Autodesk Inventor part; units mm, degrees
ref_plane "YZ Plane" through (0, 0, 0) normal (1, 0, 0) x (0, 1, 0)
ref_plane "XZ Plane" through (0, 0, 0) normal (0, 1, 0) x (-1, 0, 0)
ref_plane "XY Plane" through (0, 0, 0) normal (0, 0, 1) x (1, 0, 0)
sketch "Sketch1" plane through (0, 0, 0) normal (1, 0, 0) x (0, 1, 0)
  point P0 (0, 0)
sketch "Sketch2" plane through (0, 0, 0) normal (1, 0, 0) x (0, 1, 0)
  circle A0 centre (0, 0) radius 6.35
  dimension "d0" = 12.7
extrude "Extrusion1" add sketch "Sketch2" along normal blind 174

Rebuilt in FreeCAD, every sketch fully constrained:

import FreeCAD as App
import Part
import Sketcher
from FreeCAD import Vector
Q = App.Units.Quantity

doc = App.newDocument("Part")
params = doc.addObject("Spreadsheet::Sheet", "Params")
for row, (alias, value) in enumerate([
    ("sketch1_diameter", "0.5 in"),
    ("pad1_length", "6.8503937 in"),
], start=1):
    params.set(f"A{row}", alias)
    params.set(f"B{row}", "=" + value)
    params.setAlias(f"B{row}", alias)

body = doc.addObject("PartDesign::Body", "Body")

sketch1 = body.newObject("Sketcher::SketchObject", "Sketch")
sketch1.AttachmentSupport = (doc.getObject("YZ_Plane"), [""])
sketch1.MapMode = "FlatFace"
sketch1.addGeometry(Part.Circle(Vector(0, 0, 0), Vector(0, 0, 1), 6.35), False)
sketch1.addConstraint(Sketcher.Constraint("Coincident", 0, 3, -1, 1))
sketch1.addConstraint(Sketcher.Constraint("Diameter", 0, Q("0.5 in")))
sketch1.setExpression("Constraints[1]", "Params.sketch1_diameter")
pad1 = body.newObject("PartDesign::Pad", "Pad")
pad1.Profile = sketch1
pad1.setExpression("Length", "Params.pad1_length")

doc.recompute()
